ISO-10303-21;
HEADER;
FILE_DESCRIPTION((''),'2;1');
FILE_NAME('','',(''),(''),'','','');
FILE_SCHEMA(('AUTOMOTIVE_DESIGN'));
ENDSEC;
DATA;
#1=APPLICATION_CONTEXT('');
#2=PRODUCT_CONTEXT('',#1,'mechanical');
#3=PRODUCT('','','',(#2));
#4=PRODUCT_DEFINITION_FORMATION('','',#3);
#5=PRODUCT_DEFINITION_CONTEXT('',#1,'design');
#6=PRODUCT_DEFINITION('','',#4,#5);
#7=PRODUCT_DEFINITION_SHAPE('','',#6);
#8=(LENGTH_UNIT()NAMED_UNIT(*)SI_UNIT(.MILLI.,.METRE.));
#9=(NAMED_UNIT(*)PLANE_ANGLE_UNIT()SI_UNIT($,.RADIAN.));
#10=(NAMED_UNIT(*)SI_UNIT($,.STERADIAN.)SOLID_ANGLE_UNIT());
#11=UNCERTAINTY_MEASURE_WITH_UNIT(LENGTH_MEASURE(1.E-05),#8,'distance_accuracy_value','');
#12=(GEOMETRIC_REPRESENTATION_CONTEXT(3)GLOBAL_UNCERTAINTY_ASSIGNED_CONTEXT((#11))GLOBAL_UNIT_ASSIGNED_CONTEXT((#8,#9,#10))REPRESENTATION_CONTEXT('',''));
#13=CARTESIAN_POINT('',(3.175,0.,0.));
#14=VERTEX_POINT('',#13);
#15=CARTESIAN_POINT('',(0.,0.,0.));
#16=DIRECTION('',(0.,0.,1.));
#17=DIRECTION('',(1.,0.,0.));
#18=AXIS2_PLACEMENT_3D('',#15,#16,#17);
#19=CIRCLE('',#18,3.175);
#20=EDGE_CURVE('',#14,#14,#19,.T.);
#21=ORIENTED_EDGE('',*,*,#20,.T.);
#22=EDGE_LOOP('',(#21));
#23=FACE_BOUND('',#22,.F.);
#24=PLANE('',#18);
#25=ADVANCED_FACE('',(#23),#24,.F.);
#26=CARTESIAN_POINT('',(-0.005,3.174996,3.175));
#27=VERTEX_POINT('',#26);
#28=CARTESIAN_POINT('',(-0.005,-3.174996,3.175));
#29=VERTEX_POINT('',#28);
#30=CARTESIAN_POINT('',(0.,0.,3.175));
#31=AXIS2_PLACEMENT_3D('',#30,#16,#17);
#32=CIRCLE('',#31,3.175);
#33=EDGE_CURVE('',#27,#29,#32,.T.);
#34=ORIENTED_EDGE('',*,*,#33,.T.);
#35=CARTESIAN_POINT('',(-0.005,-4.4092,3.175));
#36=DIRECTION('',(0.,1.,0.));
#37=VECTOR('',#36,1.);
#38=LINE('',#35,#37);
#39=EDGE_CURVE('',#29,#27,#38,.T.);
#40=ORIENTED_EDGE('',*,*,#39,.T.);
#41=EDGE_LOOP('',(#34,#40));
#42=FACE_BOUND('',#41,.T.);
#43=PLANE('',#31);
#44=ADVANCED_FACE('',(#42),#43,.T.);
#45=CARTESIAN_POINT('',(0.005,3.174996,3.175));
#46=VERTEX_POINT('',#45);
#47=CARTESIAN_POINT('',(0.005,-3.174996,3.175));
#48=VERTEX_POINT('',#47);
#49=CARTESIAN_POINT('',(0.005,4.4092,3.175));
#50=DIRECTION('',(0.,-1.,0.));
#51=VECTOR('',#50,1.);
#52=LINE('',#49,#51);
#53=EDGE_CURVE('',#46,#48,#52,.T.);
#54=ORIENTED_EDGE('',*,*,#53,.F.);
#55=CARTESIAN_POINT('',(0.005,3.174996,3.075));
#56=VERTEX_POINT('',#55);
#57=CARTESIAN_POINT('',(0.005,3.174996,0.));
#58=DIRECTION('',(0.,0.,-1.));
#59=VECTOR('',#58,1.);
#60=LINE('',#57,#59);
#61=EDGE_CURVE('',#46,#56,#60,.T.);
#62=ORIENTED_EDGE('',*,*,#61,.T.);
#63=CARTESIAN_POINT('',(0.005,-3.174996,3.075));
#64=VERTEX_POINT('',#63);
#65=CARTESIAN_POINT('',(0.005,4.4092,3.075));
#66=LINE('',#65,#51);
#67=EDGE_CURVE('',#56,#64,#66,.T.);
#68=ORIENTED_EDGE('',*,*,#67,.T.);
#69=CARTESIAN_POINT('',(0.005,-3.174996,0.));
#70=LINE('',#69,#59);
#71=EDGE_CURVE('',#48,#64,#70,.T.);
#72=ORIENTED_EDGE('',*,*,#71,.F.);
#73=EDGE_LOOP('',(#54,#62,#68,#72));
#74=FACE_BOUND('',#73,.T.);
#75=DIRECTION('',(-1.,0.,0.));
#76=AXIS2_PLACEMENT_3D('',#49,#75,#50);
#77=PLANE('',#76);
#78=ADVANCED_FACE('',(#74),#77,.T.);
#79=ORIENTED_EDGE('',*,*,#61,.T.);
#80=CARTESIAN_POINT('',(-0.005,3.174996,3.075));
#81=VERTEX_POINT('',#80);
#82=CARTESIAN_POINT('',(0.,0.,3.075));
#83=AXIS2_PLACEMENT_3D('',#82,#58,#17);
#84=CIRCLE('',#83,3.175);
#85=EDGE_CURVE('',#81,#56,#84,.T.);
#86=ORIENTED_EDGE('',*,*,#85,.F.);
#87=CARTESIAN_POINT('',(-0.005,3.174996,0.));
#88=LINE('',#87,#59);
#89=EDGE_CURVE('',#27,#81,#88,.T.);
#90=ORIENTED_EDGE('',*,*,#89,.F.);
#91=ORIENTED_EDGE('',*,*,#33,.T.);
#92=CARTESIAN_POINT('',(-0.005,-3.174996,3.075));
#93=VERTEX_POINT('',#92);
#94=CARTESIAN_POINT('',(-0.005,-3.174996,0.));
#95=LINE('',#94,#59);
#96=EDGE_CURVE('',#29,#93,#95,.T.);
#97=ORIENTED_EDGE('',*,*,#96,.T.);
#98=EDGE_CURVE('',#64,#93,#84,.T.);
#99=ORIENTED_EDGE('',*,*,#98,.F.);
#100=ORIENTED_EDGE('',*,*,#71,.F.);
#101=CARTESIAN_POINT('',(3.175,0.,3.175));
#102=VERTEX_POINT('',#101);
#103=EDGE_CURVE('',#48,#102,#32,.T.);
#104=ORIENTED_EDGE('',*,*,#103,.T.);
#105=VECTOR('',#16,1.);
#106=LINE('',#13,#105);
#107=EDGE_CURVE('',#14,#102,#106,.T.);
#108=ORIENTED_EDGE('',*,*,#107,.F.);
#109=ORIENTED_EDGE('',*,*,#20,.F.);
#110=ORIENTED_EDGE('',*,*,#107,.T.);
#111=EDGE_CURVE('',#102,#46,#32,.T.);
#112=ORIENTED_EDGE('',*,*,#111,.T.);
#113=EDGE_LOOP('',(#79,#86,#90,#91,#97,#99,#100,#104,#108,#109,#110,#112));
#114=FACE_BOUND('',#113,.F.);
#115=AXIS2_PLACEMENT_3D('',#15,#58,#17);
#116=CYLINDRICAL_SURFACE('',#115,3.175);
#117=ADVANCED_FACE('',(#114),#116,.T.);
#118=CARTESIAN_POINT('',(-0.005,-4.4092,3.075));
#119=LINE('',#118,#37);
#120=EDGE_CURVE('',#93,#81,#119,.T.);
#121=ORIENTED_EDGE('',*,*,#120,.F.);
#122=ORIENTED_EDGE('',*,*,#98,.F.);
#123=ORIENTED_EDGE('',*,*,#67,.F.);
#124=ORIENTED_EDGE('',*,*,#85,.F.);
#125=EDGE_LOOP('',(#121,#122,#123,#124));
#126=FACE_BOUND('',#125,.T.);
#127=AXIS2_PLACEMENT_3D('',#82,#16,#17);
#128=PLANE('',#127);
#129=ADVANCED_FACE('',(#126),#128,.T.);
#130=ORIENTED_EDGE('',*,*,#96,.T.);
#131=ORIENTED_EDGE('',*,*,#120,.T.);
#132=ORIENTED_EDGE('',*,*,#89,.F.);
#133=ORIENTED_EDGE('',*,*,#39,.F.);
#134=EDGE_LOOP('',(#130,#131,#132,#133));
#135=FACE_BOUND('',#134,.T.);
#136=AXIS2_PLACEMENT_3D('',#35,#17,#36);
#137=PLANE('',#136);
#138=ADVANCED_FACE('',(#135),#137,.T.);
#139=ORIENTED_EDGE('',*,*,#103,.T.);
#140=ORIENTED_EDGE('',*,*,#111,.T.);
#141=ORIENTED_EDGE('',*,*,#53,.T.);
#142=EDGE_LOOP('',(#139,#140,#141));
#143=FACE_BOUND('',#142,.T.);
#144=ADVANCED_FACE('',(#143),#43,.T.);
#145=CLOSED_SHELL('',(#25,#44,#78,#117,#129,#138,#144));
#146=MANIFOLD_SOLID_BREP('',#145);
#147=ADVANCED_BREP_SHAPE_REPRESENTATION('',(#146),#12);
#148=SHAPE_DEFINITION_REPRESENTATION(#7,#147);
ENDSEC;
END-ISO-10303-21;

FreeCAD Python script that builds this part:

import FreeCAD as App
import Part
import Sketcher
from FreeCAD import Vector
Q = App.Units.Quantity

doc = App.newDocument("Part")
body = doc.addObject("PartDesign::Body", "Body")

sketch1 = body.newObject("Sketcher::SketchObject", "Sketch")
sketch1.AttachmentSupport = (doc.getObject("XY_Plane"), [""])
sketch1.MapMode = "FlatFace"
sketch1.addGeometry(Part.Circle(Vector(0, 0, 0), Vector(0, 0, 1), 3.2), False)
sketch1.addConstraint(Sketcher.Constraint("Coincident", 0, 3, -1, 1))
sketch1.addConstraint(Sketcher.Constraint("Diameter", 0, Q("0.25 in")))
pad1 = body.newObject("PartDesign::Pad", "Pad")
pad1.Profile = sketch1
pad1.Length = Q("0.125 in")

sketch2 = body.newObject("Sketcher::SketchObject", "Sketch001")
sketch2.AttachmentSupport = (doc.getObject("XY_Plane"), [""])
sketch2.MapMode = "FlatFace"
sketch2.AttachmentOffset = App.Placement(Vector(0, 0, 0.125 * 25.4), App.Rotation())
sketch2.addGeometry(Part.LineSegment(Vector(0.005, 4.409, 0), Vector(-0.005, 4.409, 0)), False)
sketch2.addGeometry(Part.LineSegment(Vector(-0.005, 4.409, 0), Vector(-0.005, -4.409, 0)), False)
sketch2.addGeometry(Part.LineSegment(Vector(-0.005, -4.409, 0), Vector(0.005, -4.409, 0)), False)
sketch2.addGeometry(Part.LineSegment(Vector(0.005, -4.409, 0), Vector(0.005, 4.409, 0)), False)
sketch2.addConstraint(Sketcher.Constraint("Coincident", 0, 2, 1, 1))
sketch2.addConstraint(Sketcher.Constraint("Coincident", 1, 2, 2, 1))
sketch2.addConstraint(Sketcher.Constraint("Coincident", 2, 2, 3, 1))
sketch2.addConstraint(Sketcher.Constraint("Coincident", 3, 2, 0, 1))
sketch2.addConstraint(Sketcher.Constraint("Horizontal", 0))
sketch2.addConstraint(Sketcher.Constraint("Vertical", 1))
sketch2.addConstraint(Sketcher.Constraint("Horizontal", 2))
sketch2.addConstraint(Sketcher.Constraint("Vertical", 3))
sketch2.addConstraint(Sketcher.Constraint("Symmetric", 0, 2, 2, 2, -1, 1))
sketch2.addConstraint(Sketcher.Constraint("DistanceX", 0, 2, 0, 1, Q("0.0004 in")))
sketch2.addConstraint(Sketcher.Constraint("DistanceY", 1, 2, 1, 1, Q("8.8184 mm")))
pocket1 = body.newObject("PartDesign::Pocket", "Pocket")
pocket1.Profile = sketch2
pocket1.Length = 0.1

doc.recompute()
